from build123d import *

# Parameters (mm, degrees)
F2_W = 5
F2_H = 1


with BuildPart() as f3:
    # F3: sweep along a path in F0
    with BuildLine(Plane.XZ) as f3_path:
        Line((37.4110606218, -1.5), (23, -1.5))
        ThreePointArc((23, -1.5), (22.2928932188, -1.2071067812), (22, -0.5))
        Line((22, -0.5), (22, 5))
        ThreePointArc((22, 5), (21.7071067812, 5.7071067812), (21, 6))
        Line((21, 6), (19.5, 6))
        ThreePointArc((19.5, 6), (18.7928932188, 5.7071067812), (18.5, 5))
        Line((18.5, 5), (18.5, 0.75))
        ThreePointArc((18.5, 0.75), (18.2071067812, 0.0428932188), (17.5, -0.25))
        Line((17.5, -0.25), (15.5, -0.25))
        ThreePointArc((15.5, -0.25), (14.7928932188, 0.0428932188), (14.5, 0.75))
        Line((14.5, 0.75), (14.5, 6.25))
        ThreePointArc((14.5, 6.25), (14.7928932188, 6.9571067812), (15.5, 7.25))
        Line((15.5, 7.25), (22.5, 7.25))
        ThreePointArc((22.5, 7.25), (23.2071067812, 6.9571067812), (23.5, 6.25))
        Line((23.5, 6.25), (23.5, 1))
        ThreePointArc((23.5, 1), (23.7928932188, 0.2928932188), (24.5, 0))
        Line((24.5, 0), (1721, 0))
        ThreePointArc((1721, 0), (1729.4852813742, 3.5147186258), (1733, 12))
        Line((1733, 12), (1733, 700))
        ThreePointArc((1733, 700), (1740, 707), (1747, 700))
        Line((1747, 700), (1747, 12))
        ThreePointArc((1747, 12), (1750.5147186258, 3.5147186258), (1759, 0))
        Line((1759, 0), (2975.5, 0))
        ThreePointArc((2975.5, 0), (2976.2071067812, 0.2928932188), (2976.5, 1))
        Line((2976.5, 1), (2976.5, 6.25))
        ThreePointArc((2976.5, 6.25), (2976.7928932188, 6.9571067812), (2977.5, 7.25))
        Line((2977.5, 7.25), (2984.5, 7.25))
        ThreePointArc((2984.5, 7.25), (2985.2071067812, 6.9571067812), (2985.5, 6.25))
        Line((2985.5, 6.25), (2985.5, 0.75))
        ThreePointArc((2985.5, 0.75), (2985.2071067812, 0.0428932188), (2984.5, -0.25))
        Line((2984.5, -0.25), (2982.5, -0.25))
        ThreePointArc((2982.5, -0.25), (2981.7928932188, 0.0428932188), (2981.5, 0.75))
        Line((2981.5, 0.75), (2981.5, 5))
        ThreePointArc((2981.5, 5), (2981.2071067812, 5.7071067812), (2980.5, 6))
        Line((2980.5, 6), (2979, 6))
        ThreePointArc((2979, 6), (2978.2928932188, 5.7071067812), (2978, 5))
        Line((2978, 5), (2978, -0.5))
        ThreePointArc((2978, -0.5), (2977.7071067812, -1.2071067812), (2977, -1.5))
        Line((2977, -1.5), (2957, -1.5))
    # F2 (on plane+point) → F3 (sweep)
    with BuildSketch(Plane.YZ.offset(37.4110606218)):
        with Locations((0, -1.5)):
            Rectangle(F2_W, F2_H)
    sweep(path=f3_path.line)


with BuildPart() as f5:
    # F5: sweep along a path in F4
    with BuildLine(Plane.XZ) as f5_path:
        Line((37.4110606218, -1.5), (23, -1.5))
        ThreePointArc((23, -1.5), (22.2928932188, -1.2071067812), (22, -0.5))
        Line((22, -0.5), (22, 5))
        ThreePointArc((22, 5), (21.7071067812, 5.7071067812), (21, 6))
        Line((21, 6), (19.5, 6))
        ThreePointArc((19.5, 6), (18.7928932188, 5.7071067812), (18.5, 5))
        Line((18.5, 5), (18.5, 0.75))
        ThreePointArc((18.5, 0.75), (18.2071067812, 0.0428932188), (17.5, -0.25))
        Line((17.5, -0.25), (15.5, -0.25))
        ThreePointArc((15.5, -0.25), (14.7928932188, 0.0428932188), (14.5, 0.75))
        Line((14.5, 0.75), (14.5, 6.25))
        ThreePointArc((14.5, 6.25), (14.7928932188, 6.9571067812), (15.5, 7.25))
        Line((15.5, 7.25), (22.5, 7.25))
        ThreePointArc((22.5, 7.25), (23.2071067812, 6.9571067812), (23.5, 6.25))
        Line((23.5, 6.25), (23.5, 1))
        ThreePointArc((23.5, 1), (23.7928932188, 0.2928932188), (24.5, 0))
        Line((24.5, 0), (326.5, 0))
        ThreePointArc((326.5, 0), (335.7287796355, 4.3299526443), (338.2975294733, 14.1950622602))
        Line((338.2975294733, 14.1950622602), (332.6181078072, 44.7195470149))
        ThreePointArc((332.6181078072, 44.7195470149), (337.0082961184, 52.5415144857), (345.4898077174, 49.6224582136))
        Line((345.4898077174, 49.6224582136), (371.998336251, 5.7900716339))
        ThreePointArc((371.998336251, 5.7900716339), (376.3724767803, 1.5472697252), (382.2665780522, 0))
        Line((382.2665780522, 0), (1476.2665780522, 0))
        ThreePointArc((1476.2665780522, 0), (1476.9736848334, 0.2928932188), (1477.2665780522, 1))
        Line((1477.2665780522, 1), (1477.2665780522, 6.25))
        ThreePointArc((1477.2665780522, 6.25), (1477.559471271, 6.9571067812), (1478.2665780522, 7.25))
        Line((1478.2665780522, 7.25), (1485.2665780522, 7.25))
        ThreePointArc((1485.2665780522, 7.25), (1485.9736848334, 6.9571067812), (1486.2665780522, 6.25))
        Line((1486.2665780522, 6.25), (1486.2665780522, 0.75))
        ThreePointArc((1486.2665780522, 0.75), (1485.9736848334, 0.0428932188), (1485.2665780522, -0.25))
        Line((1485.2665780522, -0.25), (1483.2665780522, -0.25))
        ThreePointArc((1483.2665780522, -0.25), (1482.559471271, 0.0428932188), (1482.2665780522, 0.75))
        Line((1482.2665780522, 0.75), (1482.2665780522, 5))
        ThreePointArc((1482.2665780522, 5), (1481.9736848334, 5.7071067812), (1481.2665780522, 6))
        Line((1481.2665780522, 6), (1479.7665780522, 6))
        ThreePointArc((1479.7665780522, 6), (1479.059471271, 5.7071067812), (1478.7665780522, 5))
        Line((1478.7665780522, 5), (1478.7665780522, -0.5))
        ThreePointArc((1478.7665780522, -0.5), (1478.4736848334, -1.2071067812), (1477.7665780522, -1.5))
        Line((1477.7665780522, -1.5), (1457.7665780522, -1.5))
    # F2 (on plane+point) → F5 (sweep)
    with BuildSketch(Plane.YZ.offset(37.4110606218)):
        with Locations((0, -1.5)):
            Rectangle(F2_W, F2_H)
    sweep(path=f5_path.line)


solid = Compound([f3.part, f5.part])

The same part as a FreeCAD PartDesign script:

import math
import FreeCAD as App
import Part
import Sketcher
from FreeCAD import Vector
Q = App.Units.Quantity


def add_polygon(sketch, points):
    """Adds a closed chain of lines whose ends are joined by coincident constraints."""
    first, n = sketch.GeometryCount, len(points)
    for a, b in zip(points, points[1:] + points[:1]):
        sketch.addGeometry(Part.LineSegment(App.Vector(*a, 0), App.Vector(*b, 0)), False)
    for i in range(n):
        sketch.addConstraint(Sketcher.Constraint("Coincident", first + i, 2, first + (i + 1) % n, 1))

doc = App.newDocument("Part")
params = doc.addObject("Spreadsheet::Sheet", "Params")
for row, (alias, value) in enumerate([
    ("sketch1_width", "5 mm"),
    ("sketch1_height", "1 mm"),
    ("sketch2_radius", "1 mm"),
    ("sketch2_radius2", "12 mm"),
    ("sketch2_radius3", "7 mm"),
    ("sketch2_width", "2 mm"),
    ("sketch2_width2", "7 mm"),
    ("sketch3_width", "5 mm"),
    ("sketch3_height", "1 mm"),
    ("sketch4_radius", "1 mm"),
    ("sketch4_radius2", "12 mm"),
    ("sketch4_radius3", "7 mm"),
    ("sketch4_width", "2 mm"),
    ("sketch4_width2", "7 mm"),
], start=1):
    params.set(f"A{row}", alias)
    params.set(f"B{row}", "=" + value)
    params.setAlias(f"B{row}", alias)

body = doc.addObject("PartDesign::Body", "Body")

# Sketch on YZ plane
sketch1 = body.newObject("Sketcher::SketchObject", "Sketch")
sketch1.AttachmentSupport = (doc.getObject("YZ_Plane"), [""])
sketch1.MapMode = "FlatFace"
sketch1.AttachmentOffset = App.Placement(Vector(0, 0, 37.411061), App.Rotation())
add_polygon(sketch1, [(-2.5, -1), (-2.5, -2), (2.5, -2), (2.5, -1)])  # lines 0-3
sketch1.addConstraint([
    Sketcher.Constraint("Vertical", 0),
    Sketcher.Constraint("Horizontal", 1),
    Sketcher.Constraint("Vertical", 2),
    Sketcher.Constraint("Horizontal", 3),
    Sketcher.Constraint("DistanceX", 1, 1, 1, 2, Q("5 mm")),
    Sketcher.Constraint("DistanceY", 0, 2, 0, 1, Q("1 mm")),
    Sketcher.Constraint("DistanceY", 0, 2, -1, 1, Q("2 mm")),
    Sketcher.Constraint("DistanceX", 0, 2, -1, 1, Q("2.5 mm")),
])
sketch1.setExpression("Constraints[8]", "Params.sketch1_width")
sketch1.setExpression("Constraints[9]", "Params.sketch1_height")

# Sketch on XZ plane
sketch2 = body.newObject("Sketcher::SketchObject", "Sketch001")
sketch2.AttachmentSupport = (doc.getObject("XZ_Plane"), [""])
sketch2.MapMode = "FlatFace"
sketch2.addGeometry([
    Part.LineSegment(Vector(37.4, -1.5, 0), Vector(23, -1.5, 0)),  # 0
    Part.ArcOfCircle(Part.Circle(Vector(23, -0.5, 0), Vector(0, 0, 1), 1), math.radians(180), math.radians(270)),  # 1
    Part.LineSegment(Vector(22, -0.5, 0), Vector(22, 5, 0)),  # 2
    Part.ArcOfCircle(Part.Circle(Vector(21, 5, 0), Vector(0, 0, 1), 1), math.radians(0), math.radians(90)),  # 3
    Part.LineSegment(Vector(21, 6, 0), Vector(19.5, 6, 0)),  # 4
    Part.ArcOfCircle(Part.Circle(Vector(19.5, 5, 0), Vector(0, 0, 1), 1), math.radians(90), math.radians(180)),  # 5
    Part.LineSegment(Vector(18.5, 5, 0), Vector(18.5, 0.8, 0)),  # 6
    Part.ArcOfCircle(Part.Circle(Vector(17.5, 0.8, 0), Vector(0, 0, 1), 1), math.radians(-90), math.radians(0)),  # 7
    Part.LineSegment(Vector(17.5, -0.2, 0), Vector(15.5, -0.2, 0)),  # 8
    Part.ArcOfCircle(Part.Circle(Vector(15.5, 0.8, 0), Vector(0, 0, 1), 1), math.radians(180), math.radians(270)),  # 9
    Part.LineSegment(Vector(14.5, 0.8, 0), Vector(14.5, 6.2, 0)),  # 10
    Part.ArcOfCircle(Part.Circle(Vector(15.5, 6.2, 0), Vector(0, 0, 1), 1), math.radians(90), math.radians(180)),  # 11
    Part.LineSegment(Vector(15.5, 7.2, 0), Vector(22.5, 7.2, 0)),  # 12
    Part.ArcOfCircle(Part.Circle(Vector(22.5, 6.2, 0), Vector(0, 0, 1), 1), math.radians(0), math.radians(90)),  # 13
    Part.LineSegment(Vector(23.5, 6.2, 0), Vector(23.5, 1, 0)),  # 14
    Part.ArcOfCircle(Part.Circle(Vector(24.5, 1, 0), Vector(0, 0, 1), 1), math.radians(180), math.radians(270)),  # 15
    Part.LineSegment(Vector(24.5, 0, 0), Vector(1721, 0, 0)),  # 16
    Part.ArcOfCircle(Part.Circle(Vector(1721, 12, 0), Vector(0, 0, 1), 12), math.radians(-90), math.radians(0)),  # 17
    Part.LineSegment(Vector(1733, 12, 0), Vector(1733, 700, 0)),  # 18
    Part.ArcOfCircle(Part.Circle(Vector(1740, 700, 0), Vector(0, 0, 1), 7), math.radians(0), math.radians(180)),  # 19
    Part.LineSegment(Vector(1747, 700, 0), Vector(1747, 12, 0)),  # 20
    Part.ArcOfCircle(Part.Circle(Vector(1759, 12, 0), Vector(0, 0, 1), 12), math.radians(180), math.radians(270)),  # 21
    Part.LineSegment(Vector(1759, 0, 0), Vector(2975.5, 0, 0)),  # 22
    Part.ArcOfCircle(Part.Circle(Vector(2975.5, 1, 0), Vector(0, 0, 1), 1), math.radians(-90), math.radians(0)),  # 23
    Part.LineSegment(Vector(2976.5, 1, 0), Vector(2976.5, 6.2, 0)),  # 24
    Part.ArcOfCircle(Part.Circle(Vector(2977.5, 6.2, 0), Vector(0, 0, 1), 1), math.radians(90), math.radians(180)),  # 25
    Part.LineSegment(Vector(2977.5, 7.2, 0), Vector(2984.5, 7.2, 0)),  # 26
    Part.ArcOfCircle(Part.Circle(Vector(2984.5, 6.2, 0), Vector(0, 0, 1), 1), math.radians(0), math.radians(90)),  # 27
    Part.LineSegment(Vector(2985.5, 6.2, 0), Vector(2985.5, 0.8, 0)),  # 28
    Part.ArcOfCircle(Part.Circle(Vector(2984.5, 0.8, 0), Vector(0, 0, 1), 1), math.radians(-90), math.radians(0)),  # 29
    Part.LineSegment(Vector(2984.5, -0.2, 0), Vector(2982.5, -0.2, 0)),  # 30
    Part.ArcOfCircle(Part.Circle(Vector(2982.5, 0.8, 0), Vector(0, 0, 1), 1), math.radians(180), math.radians(270)),  # 31
    Part.LineSegment(Vector(2981.5, 0.8, 0), Vector(2981.5, 5, 0)),  # 32
    Part.ArcOfCircle(Part.Circle(Vector(2980.5, 5, 0), Vector(0, 0, 1), 1), math.radians(0), math.radians(90)),  # 33
    Part.LineSegment(Vector(2980.5, 6, 0), Vector(2979, 6, 0)),  # 34
    Part.ArcOfCircle(Part.Circle(Vector(2979, 5, 0), Vector(0, 0, 1), 1), math.radians(90), math.radians(180)),  # 35
    Part.LineSegment(Vector(2978, 5, 0), Vector(2978, -0.5, 0)),  # 36
    Part.ArcOfCircle(Part.Circle(Vector(2977, -0.5, 0), Vector(0, 0, 1), 1), math.radians(-90), math.radians(0)),  # 37
    Part.LineSegment(Vector(2977, -1.5, 0), Vector(2957, -1.5, 0)),  # 38
], False)
sketch2.addConstraint([
    Sketcher.Constraint("Tangent", 0, 2, 1, 2),
    Sketcher.Constraint("Tangent", 1, 1, 2, 1),
    Sketcher.Constraint("Tangent", 2, 2, 3, 1),
    Sketcher.Constraint("Tangent", 3, 2, 4, 1),
    Sketcher.Constraint("Tangent", 4, 2, 5, 1),
    Sketcher.Constraint("Tangent", 5, 2, 6, 1),
    Sketcher.Constraint("Tangent", 6, 2, 7, 2),
    Sketcher.Constraint("Tangent", 7, 1, 8, 1),
    Sketcher.Constraint("Tangent", 8, 2, 9, 2),
    Sketcher.Constraint("Tangent", 9, 1, 10, 1),
    Sketcher.Constraint("Tangent", 10, 2, 11, 2),
    Sketcher.Constraint("Tangent", 11, 1, 12, 1),
    Sketcher.Constraint("Tangent", 12, 2, 13, 2),
    Sketcher.Constraint("Tangent", 13, 1, 14, 1),
    Sketcher.Constraint("Tangent", 14, 2, 15, 1),
    Sketcher.Constraint("Tangent", 15, 2, 16, 1),
    Sketcher.Constraint("Tangent", 16, 2, 17, 1),
    Sketcher.Constraint("Tangent", 17, 2, 18, 1),
    Sketcher.Constraint("Tangent", 18, 2, 19, 2),
    Sketcher.Constraint("Tangent", 19, 1, 20, 1),
    Sketcher.Constraint("Tangent", 20, 2, 21, 1),
    Sketcher.Constraint("Tangent", 21, 2, 22, 1),
    Sketcher.Constraint("Tangent", 22, 2, 23, 1),
    Sketcher.Constraint("Tangent", 23, 2, 24, 1),
    Sketcher.Constraint("Tangent", 24, 2, 25, 2),
    Sketcher.Constraint("Tangent", 25, 1, 26, 1),
    Sketcher.Constraint("Tangent", 26, 2, 27, 2),
    Sketcher.Constraint("Tangent", 27, 1, 28, 1),
    Sketcher.Constraint("Tangent", 28, 2, 29, 2),
    Sketcher.Constraint("Tangent", 29, 1, 30, 1),
    Sketcher.Constraint("Tangent", 30, 2, 31, 2),
    Sketcher.Constraint("Tangent", 31, 1, 32, 1),
    Sketcher.Constraint("Tangent", 32, 2, 33, 1),
    Sketcher.Constraint("Tangent", 33, 2, 34, 1),
    Sketcher.Constraint("Tangent", 34, 2, 35, 1),
    Sketcher.Constraint("Tangent", 35, 2, 36, 1),
    Sketcher.Constraint("Tangent", 36, 2, 37, 2),
    Sketcher.Constraint("Tangent", 37, 1, 38, 1),
    Sketcher.Constraint("Horizontal", 0),
    Sketcher.Constraint("Vertical", 2),
    Sketcher.Constraint("Horizontal", 4),
    Sketcher.Constraint("Vertical", 6),
    Sketcher.Constraint("Horizontal", 8),
    Sketcher.Constraint("Vertical", 10),
    Sketcher.Constraint("Horizontal", 12),
    Sketcher.Constraint("Vertical", 14),
    Sketcher.Constraint("Horizontal", 16),
    Sketcher.Constraint("Vertical", 18),
    Sketcher.Constraint("Vertical", 20),
    Sketcher.Constraint("Horizontal", 22),
    Sketcher.Constraint("Vertical", 24),
    Sketcher.Constraint("Horizontal", 26),
    Sketcher.Constraint("Vertical", 28),
    Sketcher.Constraint("Horizontal", 30),
    Sketcher.Constraint("Vertical", 32),
    Sketcher.Constraint("Horizontal", 34),
    Sketcher.Constraint("Vertical", 36),
    Sketcher.Constraint("Horizontal", 38),
    Sketcher.Constraint("Equal", 1, 3),
    Sketcher.Constraint("Equal", 3, 5),
    Sketcher.Constraint("Equal", 5, 7),
    Sketcher.Constraint("Equal", 7, 9),
    Sketcher.Constraint("Equal", 9, 11),
    Sketcher.Constraint("Equal", 11, 13),
    Sketcher.Constraint("Equal", 13, 15),
    Sketcher.Constraint("Equal", 17, 21),
    Sketcher.Constraint("Equal", 15, 23),
    Sketcher.Constraint("Equal", 23, 25),
    Sketcher.Constraint("Equal", 25, 27),
    Sketcher.Constraint("Equal", 27, 29),
    Sketcher.Constraint("Equal", 29, 31),
    Sketcher.Constraint("Equal", 31, 33),
    Sketcher.Constraint("Equal", 33, 35),
    Sketcher.Constraint("Equal", 35, 37),
    Sketcher.Constraint("PointOnObject", 15, 2, -1),
    Sketcher.Constraint("PointOnObject", 21, 2, -1),
    Sketcher.Constraint("Horizontal", 13, 3, 25, 3),
    Sketcher.Constraint("Horizontal", 9, 3, 29, 3),
    Sketcher.Constraint("Horizontal", 5, 3, 33, 3),
    Sketcher.Constraint("Horizontal", 1, 3, 37, 3),
    Sketcher.Constraint("Equal", 12, 26),
    Sketcher.Constraint("Equal", 8, 30),
    Sketcher.Constraint("Equal", 4, 34),
    Sketcher.Constraint("Equal", 2, 10),
    Sketcher.Constraint("Radius", 1, Q("1 mm")),
    Sketcher.Constraint("Radius", 17, Q("12 mm")),
    Sketcher.Constraint("Radius", 19, Q("7 mm")),
    Sketcher.Constraint("DistanceX", 8, 2, 8, 1, Q("2 mm")),
    Sketcher.Constraint("DistanceX", 12, 1, 12, 2, Q("7 mm")),
    Sketcher.Constraint("DistanceX", 38, 2, 38, 1, Q("20 mm")),
    Sketcher.Constraint("DistanceY", 18, 1, 18, 2, Q("688 mm")),
    Sketcher.Constraint("DistanceX", 4, 2, 4, 1, Q("1.5 mm")),
    Sketcher.Constraint("DistanceX", 16, 1, 16, 2, Q("1696.5 mm")),
    Sketcher.Constraint("DistanceX", 22, 1, 22, 2, Q("1216.5 mm")),
    Sketcher.Constraint("DistanceY", 2, 1, 2, 2, Q("5.5 mm")),
    Sketcher.Constraint("DistanceX", -1, 1, 1, 3, Q("23 mm")),
    Sketcher.Constraint("DistanceY", -1, 1, 3, 3, Q("5 mm")),
    Sketcher.Constraint("DistanceY", 6, 2, 6, 1, Q("4.25 mm")),
    Sketcher.Constraint("DistanceX", 0, 2, 0, 1, Q("14.411061 mm")),
])
sketch2.setExpression("Constraints[84]", "Params.sketch2_radius")
sketch2.setExpression("Constraints[85]", "Params.sketch2_radius2")
sketch2.setExpression("Constraints[86]", "Params.sketch2_radius3")
sketch2.setExpression("Constraints[87]", "Params.sketch2_width")
sketch2.setExpression("Constraints[88]", "Params.sketch2_width2")
doc.recompute()

additivepipe = body.newObject("PartDesign::AdditivePipe", "AdditivePipe")
additivepipe.Profile = sketch1
additivepipe.Spine = (sketch2, ["Edge1", "Edge2", "Edge3", "Edge4", "Edge5", "Edge6", "Edge7", "Edge8", "Edge9", "Edge10", "Edge11", "Edge12", "Edge13", "Edge14", "Edge15", "Edge16", "Edge17", "Edge18", "Edge19", "Edge20", "Edge21", "Edge22", "Edge23", "Edge24", "Edge25", "Edge26", "Edge27", "Edge28", "Edge29", "Edge30", "Edge31", "Edge32", "Edge33", "Edge34", "Edge35", "Edge36", "Edge37", "Edge38", "Edge39"])
body2 = doc.addObject("PartDesign::Body", "Body001")

# Sketch on YZ plane
sketch3 = body2.newObject("Sketcher::SketchObject", "Sketch002")
sketch3.AttachmentSupport = (doc.getObject("YZ_Plane001"), [""])
sketch3.MapMode = "FlatFace"
sketch3.AttachmentOffset = App.Placement(Vector(0, 0, 37.411061), App.Rotation())
add_polygon(sketch3, [(-2.5, -1), (-2.5, -2), (2.5, -2), (2.5, -1)])  # lines 0-3
sketch3.addConstraint([
    Sketcher.Constraint("Vertical", 0),
    Sketcher.Constraint("Horizontal", 1),
    Sketcher.Constraint("Vertical", 2),
    Sketcher.Constraint("Horizontal", 3),
    Sketcher.Constraint("DistanceX", 1, 1, 1, 2, Q("5 mm")),
    Sketcher.Constraint("DistanceY", 0, 2, 0, 1, Q("1 mm")),
    Sketcher.Constraint("DistanceY", 0, 2, -1, 1, Q("2 mm")),
    Sketcher.Constraint("DistanceX", 0, 2, -1, 1, Q("2.5 mm")),
])
sketch3.setExpression("Constraints[8]", "Params.sketch3_width")
sketch3.setExpression("Constraints[9]", "Params.sketch3_height")

# Sketch on XZ plane
sketch4 = body2.newObject("Sketcher::SketchObject", "Sketch003")
sketch4.AttachmentSupport = (doc.getObject("XZ_Plane001"), [""])
sketch4.MapMode = "FlatFace"
sketch4.addGeometry([
    Part.LineSegment(Vector(37.4, -1.5, 0), Vector(23, -1.5, 0)),  # 0
    Part.ArcOfCircle(Part.Circle(Vector(23, -0.5, 0), Vector(0, 0, 1), 1), math.radians(180), math.radians(270)),  # 1
    Part.LineSegment(Vector(22, -0.5, 0), Vector(22, 5, 0)),  # 2
    Part.ArcOfCircle(Part.Circle(Vector(21, 5, 0), Vector(0, 0, 1), 1), math.radians(0), math.radians(90)),  # 3
    Part.LineSegment(Vector(21, 6, 0), Vector(19.5, 6, 0)),  # 4
    Part.ArcOfCircle(Part.Circle(Vector(19.5, 5, 0), Vector(0, 0, 1), 1), math.radians(90), math.radians(180)),  # 5
    Part.LineSegment(Vector(18.5, 5, 0), Vector(18.5, 0.8, 0)),  # 6
    Part.ArcOfCircle(Part.Circle(Vector(17.5, 0.8, 0), Vector(0, 0, 1), 1), math.radians(-90), math.radians(0)),  # 7
    Part.LineSegment(Vector(17.5, -0.2, 0), Vector(15.5, -0.2, 0)),  # 8
    Part.ArcOfCircle(Part.Circle(Vector(15.5, 0.8, 0), Vector(0, 0, 1), 1), math.radians(180), math.radians(270)),  # 9
    Part.LineSegment(Vector(14.5, 0.8, 0), Vector(14.5, 6.2, 0)),  # 10
    Part.ArcOfCircle(Part.Circle(Vector(15.5, 6.2, 0), Vector(0, 0, 1), 1), math.radians(90), math.radians(180)),  # 11
    Part.LineSegment(Vector(15.5, 7.2, 0), Vector(22.5, 7.2, 0)),  # 12
    Part.ArcOfCircle(Part.Circle(Vector(22.5, 6.2, 0), Vector(0, 0, 1), 1), math.radians(0), math.radians(90)),  # 13
    Part.LineSegment(Vector(23.5, 6.2, 0), Vector(23.5, 1, 0)),  # 14
    Part.ArcOfCircle(Part.Circle(Vector(24.5, 1, 0), Vector(0, 0, 1), 1), math.radians(180), math.radians(270)),  # 15
    Part.LineSegment(Vector(24.5, 0, 0), Vector(326.5, 0, 0)),  # 16
    Part.ArcOfCircle(Part.Circle(Vector(326.5, 12, 0), Vector(0, 0, 1), 12), math.radians(-90), math.radians(11)),  # 17
    Part.LineSegment(Vector(338.3, 14.2, 0), Vector(332.6, 44.7, 0)),  # 18
    Part.ArcOfCircle(Part.Circle(Vector(339.5, 46, 0), Vector(0, 0, 1), 7), math.radians(31), math.radians(191)),  # 19
    Part.LineSegment(Vector(345.5, 49.6, 0), Vector(372, 5.8, 0)),  # 20
    Part.ArcOfCircle(Part.Circle(Vector(382.3, 12, 0), Vector(0, 0, 1), 12), math.radians(-149), math.radians(-90)),  # 21
    Part.LineSegment(Vector(382.3, 0, 0), Vector(1476.3, 0, 0)),  # 22
    Part.ArcOfCircle(Part.Circle(Vector(1476.3, 1, 0), Vector(0, 0, 1), 1), math.radians(-90), math.radians(0)),  # 23
    Part.LineSegment(Vector(1477.3, 1, 0), Vector(1477.3, 6.2, 0)),  # 24
    Part.ArcOfCircle(Part.Circle(Vector(1478.3, 6.2, 0), Vector(0, 0, 1), 1), math.radians(90), math.radians(180)),  # 25
    Part.LineSegment(Vector(1478.3, 7.2, 0), Vector(1485.3, 7.2, 0)),  # 26
    Part.ArcOfCircle(Part.Circle(Vector(1485.3, 6.2, 0), Vector(0, 0, 1), 1), math.radians(0), math.radians(90)),  # 27
    Part.LineSegment(Vector(1486.3, 6.2, 0), Vector(1486.3, 0.8, 0)),  # 28
    Part.ArcOfCircle(Part.Circle(Vector(1485.3, 0.8, 0), Vector(0, 0, 1), 1), math.radians(-90), math.radians(0)),  # 29
    Part.LineSegment(Vector(1485.3, -0.2, 0), Vector(1483.3, -0.2, 0)),  # 30
    Part.ArcOfCircle(Part.Circle(Vector(1483.3, 0.8, 0), Vector(0, 0, 1), 1), math.radians(180), math.radians(270)),  # 31
    Part.LineSegment(Vector(1482.3, 0.8, 0), Vector(1482.3, 5, 0)),  # 32
    Part.ArcOfCircle(Part.Circle(Vector(1481.3, 5, 0), Vector(0, 0, 1), 1), math.radians(0), math.radians(90)),  # 33
    Part.LineSegment(Vector(1481.3, 6, 0), Vector(1479.8, 6, 0)),  # 34
    Part.ArcOfCircle(Part.Circle(Vector(1479.8, 5, 0), Vector(0, 0, 1), 1), math.radians(90), math.radians(180)),  # 35
    Part.LineSegment(Vector(1478.8, 5, 0), Vector(1478.8, -0.5, 0)),  # 36
    Part.ArcOfCircle(Part.Circle(Vector(1477.8, -0.5, 0), Vector(0, 0, 1), 1), math.radians(-90), math.radians(0)),  # 37
    Part.LineSegment(Vector(1477.8, -1.5, 0), Vector(1457.8, -1.5, 0)),  # 38
], False)
sketch4.addConstraint([
    Sketcher.Constraint("Tangent", 0, 2, 1, 2),
    Sketcher.Constraint("Tangent", 1, 1, 2, 1),
    Sketcher.Constraint("Tangent", 2, 2, 3, 1),
    Sketcher.Constraint("Tangent", 3, 2, 4, 1),
    Sketcher.Constraint("Tangent", 4, 2, 5, 1),
    Sketcher.Constraint("Tangent", 5, 2, 6, 1),
    Sketcher.Constraint("Tangent", 6, 2, 7, 2),
    Sketcher.Constraint("Tangent", 7, 1, 8, 1),
    Sketcher.Constraint("Tangent", 8, 2, 9, 2),
    Sketcher.Constraint("Tangent", 9, 1, 10, 1),
    Sketcher.Constraint("Tangent", 10, 2, 11, 2),
    Sketcher.Constraint("Tangent", 11, 1, 12, 1),
    Sketcher.Constraint("Tangent", 12, 2, 13, 2),
    Sketcher.Constraint("Tangent", 13, 1, 14, 1),
    Sketcher.Constraint("Tangent", 14, 2, 15, 1),
    Sketcher.Constraint("Tangent", 15, 2, 16, 1),
    Sketcher.Constraint("Tangent", 16, 2, 17, 1),
    Sketcher.Constraint("Tangent", 17, 2, 18, 1),
    Sketcher.Constraint("Tangent", 18, 2, 19, 2),
    Sketcher.Constraint("Tangent", 19, 1, 20, 1),
    Sketcher.Constraint("Tangent", 20, 2, 21, 1),
    Sketcher.Constraint("Tangent", 21, 2, 22, 1),
    Sketcher.Constraint("Tangent", 22, 2, 23, 1),
    Sketcher.Constraint("Tangent", 23, 2, 24, 1),
    Sketcher.Constraint("Tangent", 24, 2, 25, 2),
    Sketcher.Constraint("Tangent", 25, 1, 26, 1),
    Sketcher.Constraint("Tangent", 26, 2, 27, 2),
    Sketcher.Constraint("Tangent", 27, 1, 28, 1),
    Sketcher.Constraint("Tangent", 28, 2, 29, 2),
    Sketcher.Constraint("Tangent", 29, 1, 30, 1),
    Sketcher.Constraint("Tangent", 30, 2, 31, 2),
    Sketcher.Constraint("Tangent", 31, 1, 32, 1),
    Sketcher.Constraint("Tangent", 32, 2, 33, 1),
    Sketcher.Constraint("Tangent", 33, 2, 34, 1),
    Sketcher.Constraint("Tangent", 34, 2, 35, 1),
    Sketcher.Constraint("Tangent", 35, 2, 36, 1),
    Sketcher.Constraint("Tangent", 36, 2, 37, 2),
    Sketcher.Constraint("Tangent", 37, 1, 38, 1),
    Sketcher.Constraint("Horizontal", 0),
    Sketcher.Constraint("Vertical", 2),
    Sketcher.Constraint("Horizontal", 4),
    Sketcher.Constraint("Vertical", 6),
    Sketcher.Constraint("Horizontal", 8),
    Sketcher.Constraint("Vertical", 10),
    Sketcher.Constraint("Horizontal", 12),
    Sketcher.Constraint("Vertical", 14),
    Sketcher.Constraint("Horizontal", 16),
    Sketcher.Constraint("Horizontal", 22),
    Sketcher.Constraint("Vertical", 24),
    Sketcher.Constraint("Horizontal", 26),
    Sketcher.Constraint("Vertical", 28),
    Sketcher.Constraint("Horizontal", 30),
    Sketcher.Constraint("Vertical", 32),
    Sketcher.Constraint("Horizontal", 34),
    Sketcher.Constraint("Vertical", 36),
    Sketcher.Constraint("Horizontal", 38),
    Sketcher.Constraint("Equal", 1, 3),
    Sketcher.Constraint("Equal", 3, 5),
    Sketcher.Constraint("Equal", 5, 7),
    Sketcher.Constraint("Equal", 7, 9),
    Sketcher.Constraint("Equal", 9, 11),
    Sketcher.Constraint("Equal", 11, 13),
    Sketcher.Constraint("Equal", 13, 15),
    Sketcher.Constraint("Equal", 17, 21),
    Sketcher.Constraint("Equal", 15, 23),
    Sketcher.Constraint("Equal", 23, 25),
    Sketcher.Constraint("Equal", 25, 27),
    Sketcher.Constraint("Equal", 27, 29),
    Sketcher.Constraint("Equal", 29, 31),
    Sketcher.Constraint("Equal", 31, 33),
    Sketcher.Constraint("Equal", 33, 35),
    Sketcher.Constraint("Equal", 35, 37),
    Sketcher.Constraint("PointOnObject", 15, 2, -1),
    Sketcher.Constraint("PointOnObject", 21, 2, -1),
    Sketcher.Constraint("Horizontal", 13, 3, 25, 3),
    Sketcher.Constraint("Horizontal", 9, 3, 29, 3),
    Sketcher.Constraint("Horizontal", 5, 3, 33, 3),
    Sketcher.Constraint("Horizontal", 1, 3, 37, 3),
    Sketcher.Constraint("Equal", 12, 26),
    Sketcher.Constraint("Equal", 8, 30),
    Sketcher.Constraint("Equal", 4, 34),
    Sketcher.Constraint("Equal", 2, 10),
    Sketcher.Constraint("Radius", 1, Q("1 mm")),
    Sketcher.Constraint("Radius", 17, Q("12 mm")),
    Sketcher.Constraint("Radius", 19, Q("7 mm")),
    Sketcher.Constraint("DistanceX", 8, 2, 8, 1, Q("2 mm")),
    Sketcher.Constraint("DistanceX", 12, 1, 12, 2, Q("7 mm")),
    Sketcher.Constraint("DistanceX", 16, 1, 16, 2, Q("302 mm")),
    Sketcher.Constraint("DistanceX", 22, 1, 22, 2, Q("1094 mm")),
    Sketcher.Constraint("DistanceX", 38, 2, 38, 1, Q("20 mm")),
    Sketcher.Constraint("DistanceX", 4, 2, 4, 1, Q("1.5 mm")),
    Sketcher.Constraint("DistanceY", 2, 1, 2, 2, Q("5.5 mm")),
    Sketcher.Constraint("DistanceX", -1, 1, 1, 3, Q("23 mm")),
    Sketcher.Constraint("DistanceY", -1, 1, 3, 3, Q("5 mm")),
    Sketcher.Constraint("DistanceY", -1, 1, 19, 3, Q("46 mm")),
    Sketcher.Constraint("DistanceX", 17, 3, 19, 3, Q("13 mm")),
    Sketcher.Constraint("DistanceY", 6, 2, 6, 1, Q("4.25 mm")),
    Sketcher.Constraint("Distance", 20, Q("51.224801 mm")),
    Sketcher.Constraint("DistanceX", 0, 2, 0, 1, Q("14.411061 mm")),
])
sketch4.setExpression("Constraints[82]", "Params.sketch4_radius")
sketch4.setExpression("Constraints[83]", "Params.sketch4_radius2")
sketch4.setExpression("Constraints[84]", "Params.sketch4_radius3")
sketch4.setExpression("Constraints[85]", "Params.sketch4_width")
sketch4.setExpression("Constraints[86]", "Params.sketch4_width2")
doc.recompute()

additivepipe2 = body2.newObject("PartDesign::AdditivePipe", "AdditivePipe001")
additivepipe2.Profile = sketch3
additivepipe2.Spine = (sketch4, ["Edge1", "Edge2", "Edge3", "Edge4", "Edge5", "Edge6", "Edge7", "Edge8", "Edge9", "Edge10", "Edge11", "Edge12", "Edge13", "Edge14", "Edge15", "Edge16", "Edge17", "Edge18", "Edge19", "Edge20", "Edge21", "Edge22", "Edge23", "Edge24", "Edge25", "Edge26", "Edge27", "Edge28", "Edge29", "Edge30", "Edge31", "Edge32", "Edge33", "Edge34", "Edge35", "Edge36", "Edge37", "Edge38", "Edge39"])

doc.recompute()
